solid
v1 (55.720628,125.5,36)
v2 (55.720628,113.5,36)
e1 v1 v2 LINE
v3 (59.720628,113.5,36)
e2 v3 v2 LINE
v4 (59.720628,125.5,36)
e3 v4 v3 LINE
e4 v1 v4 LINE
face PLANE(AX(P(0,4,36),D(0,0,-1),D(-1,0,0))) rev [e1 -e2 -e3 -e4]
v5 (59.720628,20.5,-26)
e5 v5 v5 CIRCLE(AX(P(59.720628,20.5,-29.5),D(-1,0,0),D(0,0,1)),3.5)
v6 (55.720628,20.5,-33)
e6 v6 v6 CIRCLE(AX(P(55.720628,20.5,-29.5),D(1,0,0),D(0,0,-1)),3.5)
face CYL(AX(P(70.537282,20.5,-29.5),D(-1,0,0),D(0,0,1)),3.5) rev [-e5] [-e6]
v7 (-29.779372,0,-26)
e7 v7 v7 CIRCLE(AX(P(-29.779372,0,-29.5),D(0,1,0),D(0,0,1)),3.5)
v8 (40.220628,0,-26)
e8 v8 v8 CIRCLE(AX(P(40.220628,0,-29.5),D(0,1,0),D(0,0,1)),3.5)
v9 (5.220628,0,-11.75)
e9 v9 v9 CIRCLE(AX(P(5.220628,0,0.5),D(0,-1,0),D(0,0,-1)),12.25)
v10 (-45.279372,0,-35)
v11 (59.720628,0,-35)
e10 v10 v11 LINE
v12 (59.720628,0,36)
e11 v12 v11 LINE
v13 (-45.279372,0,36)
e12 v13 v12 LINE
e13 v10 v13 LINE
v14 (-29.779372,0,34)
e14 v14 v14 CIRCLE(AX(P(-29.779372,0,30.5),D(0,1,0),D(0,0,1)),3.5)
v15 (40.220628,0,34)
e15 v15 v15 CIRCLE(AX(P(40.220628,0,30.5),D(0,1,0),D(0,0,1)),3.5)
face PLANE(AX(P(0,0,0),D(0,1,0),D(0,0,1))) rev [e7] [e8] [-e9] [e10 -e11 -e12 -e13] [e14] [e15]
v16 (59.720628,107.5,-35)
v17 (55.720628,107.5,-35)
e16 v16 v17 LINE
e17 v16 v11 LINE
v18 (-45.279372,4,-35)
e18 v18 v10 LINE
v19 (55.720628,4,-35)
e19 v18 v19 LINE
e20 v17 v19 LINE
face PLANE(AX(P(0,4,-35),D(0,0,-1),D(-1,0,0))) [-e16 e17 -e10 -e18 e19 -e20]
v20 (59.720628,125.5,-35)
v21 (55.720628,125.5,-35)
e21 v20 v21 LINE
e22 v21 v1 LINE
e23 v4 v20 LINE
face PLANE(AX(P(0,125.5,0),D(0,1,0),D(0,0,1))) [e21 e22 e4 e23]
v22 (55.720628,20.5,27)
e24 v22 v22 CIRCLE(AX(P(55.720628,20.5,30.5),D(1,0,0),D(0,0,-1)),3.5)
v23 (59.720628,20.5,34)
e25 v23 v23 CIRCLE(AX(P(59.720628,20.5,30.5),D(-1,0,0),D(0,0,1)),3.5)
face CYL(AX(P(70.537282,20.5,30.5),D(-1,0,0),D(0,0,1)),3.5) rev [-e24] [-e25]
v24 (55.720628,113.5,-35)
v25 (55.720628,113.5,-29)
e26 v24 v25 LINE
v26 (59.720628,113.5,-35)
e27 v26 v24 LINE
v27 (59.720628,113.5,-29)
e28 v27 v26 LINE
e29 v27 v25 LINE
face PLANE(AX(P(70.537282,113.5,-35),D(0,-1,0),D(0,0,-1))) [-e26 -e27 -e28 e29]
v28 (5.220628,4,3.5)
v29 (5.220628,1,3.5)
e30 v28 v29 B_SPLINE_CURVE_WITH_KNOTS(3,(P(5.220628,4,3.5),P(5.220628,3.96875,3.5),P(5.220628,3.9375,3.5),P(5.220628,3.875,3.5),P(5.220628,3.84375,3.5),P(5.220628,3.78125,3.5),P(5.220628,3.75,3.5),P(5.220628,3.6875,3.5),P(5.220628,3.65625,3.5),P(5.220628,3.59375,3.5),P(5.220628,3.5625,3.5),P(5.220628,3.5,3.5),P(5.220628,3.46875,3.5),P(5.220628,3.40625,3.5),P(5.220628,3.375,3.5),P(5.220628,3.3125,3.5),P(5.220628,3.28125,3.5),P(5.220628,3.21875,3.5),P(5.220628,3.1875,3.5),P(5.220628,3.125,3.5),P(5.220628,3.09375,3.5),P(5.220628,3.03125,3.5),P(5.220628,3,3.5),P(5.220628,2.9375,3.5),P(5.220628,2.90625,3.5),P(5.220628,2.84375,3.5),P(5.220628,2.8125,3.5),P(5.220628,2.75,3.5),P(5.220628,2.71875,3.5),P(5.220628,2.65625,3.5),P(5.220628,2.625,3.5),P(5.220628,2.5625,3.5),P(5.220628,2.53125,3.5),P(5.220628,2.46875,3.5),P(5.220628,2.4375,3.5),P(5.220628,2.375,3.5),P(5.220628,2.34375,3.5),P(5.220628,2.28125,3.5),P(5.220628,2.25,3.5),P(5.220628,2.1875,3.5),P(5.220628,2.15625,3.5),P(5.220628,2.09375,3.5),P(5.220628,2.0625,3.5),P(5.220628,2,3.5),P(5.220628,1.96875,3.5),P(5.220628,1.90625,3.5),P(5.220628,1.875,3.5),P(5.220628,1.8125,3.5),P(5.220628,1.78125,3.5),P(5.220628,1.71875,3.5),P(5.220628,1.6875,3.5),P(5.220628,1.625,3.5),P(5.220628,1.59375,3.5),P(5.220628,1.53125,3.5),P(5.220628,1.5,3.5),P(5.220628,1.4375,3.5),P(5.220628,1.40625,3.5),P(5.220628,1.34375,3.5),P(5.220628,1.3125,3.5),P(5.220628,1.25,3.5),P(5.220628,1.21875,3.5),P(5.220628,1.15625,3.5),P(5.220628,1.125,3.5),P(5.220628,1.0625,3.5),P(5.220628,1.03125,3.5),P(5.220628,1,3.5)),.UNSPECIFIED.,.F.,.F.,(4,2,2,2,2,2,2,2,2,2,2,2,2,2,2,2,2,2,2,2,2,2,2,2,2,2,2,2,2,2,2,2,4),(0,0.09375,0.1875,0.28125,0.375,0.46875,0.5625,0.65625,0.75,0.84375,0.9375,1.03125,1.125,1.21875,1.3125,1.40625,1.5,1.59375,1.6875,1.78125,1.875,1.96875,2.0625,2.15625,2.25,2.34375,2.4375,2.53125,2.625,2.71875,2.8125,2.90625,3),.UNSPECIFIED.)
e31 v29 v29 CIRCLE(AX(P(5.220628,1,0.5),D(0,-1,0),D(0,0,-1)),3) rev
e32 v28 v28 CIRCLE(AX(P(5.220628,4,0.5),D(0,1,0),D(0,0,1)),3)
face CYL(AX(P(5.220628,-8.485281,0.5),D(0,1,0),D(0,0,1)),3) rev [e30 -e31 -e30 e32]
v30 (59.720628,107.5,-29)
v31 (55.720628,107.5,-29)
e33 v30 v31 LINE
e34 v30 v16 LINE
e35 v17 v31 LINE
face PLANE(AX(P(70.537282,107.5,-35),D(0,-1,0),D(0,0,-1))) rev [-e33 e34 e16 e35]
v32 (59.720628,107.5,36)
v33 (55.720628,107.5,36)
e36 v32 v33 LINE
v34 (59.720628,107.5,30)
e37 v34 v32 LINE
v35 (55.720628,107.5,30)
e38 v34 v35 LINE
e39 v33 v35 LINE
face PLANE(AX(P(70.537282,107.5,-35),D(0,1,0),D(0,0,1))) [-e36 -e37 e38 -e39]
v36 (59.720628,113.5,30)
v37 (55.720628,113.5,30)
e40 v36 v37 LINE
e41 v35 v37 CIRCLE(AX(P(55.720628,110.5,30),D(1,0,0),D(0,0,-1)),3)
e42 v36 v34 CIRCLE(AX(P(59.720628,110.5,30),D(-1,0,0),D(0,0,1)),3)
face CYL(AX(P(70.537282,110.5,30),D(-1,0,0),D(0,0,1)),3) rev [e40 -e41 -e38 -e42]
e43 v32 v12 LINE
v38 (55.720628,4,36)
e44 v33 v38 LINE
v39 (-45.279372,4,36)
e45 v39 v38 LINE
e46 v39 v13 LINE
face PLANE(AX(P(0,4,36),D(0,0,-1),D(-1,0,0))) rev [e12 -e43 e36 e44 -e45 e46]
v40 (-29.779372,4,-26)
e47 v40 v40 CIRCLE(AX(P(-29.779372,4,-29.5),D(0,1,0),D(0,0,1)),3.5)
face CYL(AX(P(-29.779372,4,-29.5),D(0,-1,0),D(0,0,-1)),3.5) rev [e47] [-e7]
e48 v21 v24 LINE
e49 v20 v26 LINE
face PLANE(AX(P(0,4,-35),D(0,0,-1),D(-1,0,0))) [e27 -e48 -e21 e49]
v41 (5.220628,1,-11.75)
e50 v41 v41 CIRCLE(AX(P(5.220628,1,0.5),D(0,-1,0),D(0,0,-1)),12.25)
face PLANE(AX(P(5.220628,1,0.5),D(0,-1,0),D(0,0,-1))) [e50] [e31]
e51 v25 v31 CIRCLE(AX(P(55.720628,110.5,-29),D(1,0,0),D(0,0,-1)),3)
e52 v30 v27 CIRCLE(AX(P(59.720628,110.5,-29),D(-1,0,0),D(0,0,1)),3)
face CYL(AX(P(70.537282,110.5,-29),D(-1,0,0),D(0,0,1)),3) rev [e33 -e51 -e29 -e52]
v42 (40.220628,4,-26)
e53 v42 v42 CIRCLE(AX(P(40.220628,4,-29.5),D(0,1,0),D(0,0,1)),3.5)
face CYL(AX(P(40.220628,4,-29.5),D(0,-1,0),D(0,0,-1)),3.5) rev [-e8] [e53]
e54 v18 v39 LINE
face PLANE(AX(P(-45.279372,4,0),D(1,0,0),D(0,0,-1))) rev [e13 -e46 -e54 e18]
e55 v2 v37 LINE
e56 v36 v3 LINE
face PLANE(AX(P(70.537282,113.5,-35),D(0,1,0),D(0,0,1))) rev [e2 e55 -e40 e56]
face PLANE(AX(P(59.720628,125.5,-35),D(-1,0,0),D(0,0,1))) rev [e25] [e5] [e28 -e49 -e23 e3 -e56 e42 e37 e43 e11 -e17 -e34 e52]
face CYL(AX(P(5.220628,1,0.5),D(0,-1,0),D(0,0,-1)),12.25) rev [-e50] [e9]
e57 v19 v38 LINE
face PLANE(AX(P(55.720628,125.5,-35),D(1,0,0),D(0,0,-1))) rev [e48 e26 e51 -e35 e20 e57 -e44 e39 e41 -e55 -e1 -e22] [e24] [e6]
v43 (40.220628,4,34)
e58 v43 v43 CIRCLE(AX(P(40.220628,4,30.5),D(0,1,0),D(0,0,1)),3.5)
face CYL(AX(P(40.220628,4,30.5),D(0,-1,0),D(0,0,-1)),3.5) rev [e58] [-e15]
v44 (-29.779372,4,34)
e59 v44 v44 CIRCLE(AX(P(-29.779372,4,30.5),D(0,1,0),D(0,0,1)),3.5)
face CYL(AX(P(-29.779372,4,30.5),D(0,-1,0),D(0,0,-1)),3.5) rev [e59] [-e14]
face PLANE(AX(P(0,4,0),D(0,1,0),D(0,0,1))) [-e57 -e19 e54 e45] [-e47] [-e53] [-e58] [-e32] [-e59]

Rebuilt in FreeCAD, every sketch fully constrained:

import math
import FreeCAD as App
import Part
import Sketcher


def add_polygon(sketch, points):
    """Adds a closed chain of lines whose ends are joined by coincident constraints."""
    first, n = sketch.GeometryCount, len(points)
    for a, b in zip(points, points[1:] + points[:1]):
        sketch.addGeometry(Part.LineSegment(App.Vector(*a, 0), App.Vector(*b, 0)), False)
    for i in range(n):
        sketch.addConstraint(Sketcher.Constraint("Coincident", first + i, 2, first + (i + 1) % n, 1))

doc = App.newDocument("Part")
body = doc.addObject("PartDesign::Body", "Body")

sketch1 = body.newObject("Sketcher::SketchObject", "Sketch")
sketch1.AttachmentSupport = (doc.getObject("XZ_Plane"), [""])
sketch1.MapMode = "FlatFace"
add_polygon(sketch1, [(-45.3, 36), (55.7, 36), (55.7, -35), (-45.3, -35)])
sketch1.addGeometry(Part.ArcOfCircle(Part.Circle(App.Vector(40.2, 30.5, 0), App.Vector(0, 0, 1), 3.5), math.radians(90), math.radians(360)), False)
sketch1.addGeometry(Part.ArcOfCircle(Part.Circle(App.Vector(40.2, 30.5, 0), App.Vector(0, 0, 1), 3.5), math.radians(0), math.radians(90)), False)
sketch1.addGeometry(Part.ArcOfCircle(Part.Circle(App.Vector(40.2, -29.5, 0), App.Vector(0, 0, 1), 3.5), math.radians(0), math.radians(270)), False)
sketch1.addGeometry(Part.ArcOfCircle(Part.Circle(App.Vector(40.2, -29.5, 0), App.Vector(0, 0, 1), 3.5), math.radians(-90), math.radians(0)), False)
sketch1.addGeometry(Part.ArcOfCircle(Part.Circle(App.Vector(-29.8, -29.5, 0), App.Vector(0, 0, 1), 3.5), math.radians(-90), math.radians(0)), False)
sketch1.addGeometry(Part.ArcOfCircle(Part.Circle(App.Vector(-29.8, -29.5, 0), App.Vector(0, 0, 1), 3.5), math.radians(0), math.radians(180)), False)
sketch1.addGeometry(Part.ArcOfCircle(Part.Circle(App.Vector(-29.8, -29.5, 0), App.Vector(0, 0, 1), 3.5), math.radians(-180), math.radians(-90)), False)
sketch1.addGeometry(Part.ArcOfCircle(Part.Circle(App.Vector(-29.8, 30.5, 0), App.Vector(0, 0, 1), 3.5), math.radians(180), math.radians(360)), False)
sketch1.addGeometry(Part.ArcOfCircle(Part.Circle(App.Vector(-29.8, 30.5, 0), App.Vector(0, 0, 1), 3.5), math.radians(0), math.radians(90)), False)
sketch1.addGeometry(Part.ArcOfCircle(Part.Circle(App.Vector(-29.8, 30.5, 0), App.Vector(0, 0, 1), 3.5), math.radians(90), math.radians(180)), False)
sketch1.addConstraint([
    Sketcher.Constraint("Tangent", 4, 1, 5, 2),
    Sketcher.Constraint("Coincident", 5, 1, 4, 2),
    Sketcher.Constraint("Tangent", 6, 1, 7, 2),
    Sketcher.Constraint("Coincident", 7, 1, 6, 2),
    Sketcher.Constraint("Tangent", 8, 2, 9, 1),
    Sketcher.Constraint("Tangent", 9, 2, 10, 1),
    Sketcher.Constraint("Tangent", 10, 2, 8, 1),
    Sketcher.Constraint("Tangent", 11, 2, 12, 1),
    Sketcher.Constraint("Tangent", 12, 2, 13, 1),
    Sketcher.Constraint("Tangent", 13, 2, 11, 1),
    Sketcher.Constraint("Horizontal", 0),
    Sketcher.Constraint("Vertical", 1),
    Sketcher.Constraint("Horizontal", 2),
    Sketcher.Constraint("Vertical", 3),
    Sketcher.Constraint("Equal", 5, 6),
    Sketcher.Constraint("Equal", 7, 8),
    Sketcher.Constraint("Equal", 10, 11),
    Sketcher.Constraint("Horizontal", 7, 3, 8, 3),
    Sketcher.Constraint("Horizontal", 5, 3, 11, 3),
    Sketcher.Constraint("Horizontal", 13, 3, 5, 1),
    Sketcher.Constraint("Horizontal", 10, 3, 6, 1),
    Sketcher.Constraint("Horizontal", 6, 1, 8, 2),
    Sketcher.Constraint("Horizontal", 8, 2, 9, 2),
    Sketcher.Constraint("Horizontal", 5, 1, 11, 2),
    Sketcher.Constraint("Horizontal", 11, 2, 13, 2),
    Sketcher.Constraint("Vertical", 5, 3, 6, 3),
    Sketcher.Constraint("Vertical", 10, 3, 11, 3),
    Sketcher.Constraint("Vertical", 7, 3, 4, 1),
    Sketcher.Constraint("Vertical", 4, 1, 7, 1),
    Sketcher.Constraint("Vertical", 13, 3, 10, 2),
    Sketcher.Constraint("Vertical", 10, 2, 12, 2),
    Sketcher.Constraint("Radius", 4, 3.5),
    Sketcher.Constraint("DistanceX", 0, 1, 0, 2, 101.0),
    Sketcher.Constraint("DistanceY", 1, 2, 1, 1, 71.0),
    Sketcher.Constraint("DistanceY", -1, 1, 0, 2, 36.0),
    Sketcher.Constraint("DistanceY", -1, 1, 4, 1, 34.0),
    Sketcher.Constraint("DistanceY", 7, 1, -1, 1, 33.0),
    Sketcher.Constraint("DistanceX", 8, 3, 7, 3, 70.0),
    Sketcher.Constraint("DistanceX", 5, 1, 0, 2, 12.0),
    Sketcher.Constraint("DistanceX", -1, 1, 4, 3, 40.220628),
])
pad1 = body.newObject("PartDesign::Pad", "Pad")
pad1.Profile = sketch1
pad1.Length = 4
pad1.Reversed = True

sketch2 = body.newObject("Sketcher::SketchObject", "Sketch001")
sketch2.AttachmentSupport = (doc.getObject("XZ_Plane"), [""])
sketch2.MapMode = "FlatFace"
add_polygon(sketch2, [(55.7, -35), (55.7, 36), (59.7, 36), (59.7, -35)])
sketch2.addConstraint([
    Sketcher.Constraint("Vertical", 0),
    Sketcher.Constraint("Horizontal", 1),
    Sketcher.Constraint("Vertical", 2),
    Sketcher.Constraint("Horizontal", 3),
    Sketcher.Constraint("DistanceX", 1, 1, 1, 2, 4.0),
    Sketcher.Constraint("DistanceY", 0, 1, 0, 2, 71.0),
    Sketcher.Constraint("DistanceY", -1, 1, 0, 2, 36.0),
    Sketcher.Constraint("DistanceX", -1, 1, 0, 2, 55.720628),
])
pad2 = body.newObject("PartDesign::Pad", "Pad001")
pad2.Profile = sketch2
pad2.Length = 125.5
pad2.Reversed = True

sketch3 = body.newObject("Sketcher::SketchObject", "Sketch002")
sketch3.AttachmentSupport = (doc.getObject("YZ_Plane"), [""])
sketch3.MapMode = "FlatFace"
sketch3.AttachmentOffset = App.Placement(App.Vector(0, 0, 55.720628), App.Rotation())
sketch3.addGeometry([
    Part.ArcOfCircle(Part.Circle(App.Vector(110.5, -29, 0), App.Vector(0, 0, 1), 3), math.radians(0), math.radians(90)),
    Part.ArcOfCircle(Part.Circle(App.Vector(110.5, -29, 0), App.Vector(0, 0, 1), 3), math.radians(90), math.radians(180)),
    Part.LineSegment(App.Vector(107.5, -29, 0), App.Vector(107.5, -35, 0)),
    Part.LineSegment(App.Vector(107.5, -35, 0), App.Vector(113.5, -35, 0)),
    Part.LineSegment(App.Vector(113.5, -35, 0), App.Vector(113.5, -29, 0)),
    Part.ArcOfCircle(Part.Circle(App.Vector(110.5, 30, 0), App.Vector(0, 0, 1), 3), math.radians(-90), math.radians(0)),
    Part.LineSegment(App.Vector(113.5, 30, 0), App.Vector(113.5, 36, 0)),
    Part.LineSegment(App.Vector(113.5, 36, 0), App.Vector(107.5, 36, 0)),
    Part.LineSegment(App.Vector(107.5, 36, 0), App.Vector(107.5, 30, 0)),
    Part.ArcOfCircle(Part.Circle(App.Vector(110.5, 30, 0), App.Vector(0, 0, 1), 3), math.radians(180), math.radians(270)),
    Part.Circle(App.Vector(20.5, -29.5, 0), App.Vector(0, 0, 1), 3.5),
    Part.Circle(App.Vector(20.5, 30.5, 0), App.Vector(0, 0, 1), 3.5),
], False)
sketch3.addConstraint([
    Sketcher.Constraint("Tangent", 0, 2, 1, 1),
    Sketcher.Constraint("Tangent", 1, 2, 2, 1),
    Sketcher.Constraint("Coincident", 2, 2, 3, 1),
    Sketcher.Constraint("Coincident", 3, 2, 4, 1),
    Sketcher.Constraint("Tangent", 4, 2, 0, 1),
    Sketcher.Constraint("Tangent", 5, 2, 6, 1),
    Sketcher.Constraint("Coincident", 6, 2, 7, 1),
    Sketcher.Constraint("Coincident", 7, 2, 8, 1),
    Sketcher.Constraint("Tangent", 8, 2, 9, 1),
    Sketcher.Constraint("Tangent", 9, 2, 5, 1),
    Sketcher.Constraint("Vertical", 2),
    Sketcher.Constraint("Horizontal", 3),
    Sketcher.Constraint("Vertical", 4),
    Sketcher.Constraint("Vertical", 6),
    Sketcher.Constraint("Horizontal", 7),
    Sketcher.Constraint("Vertical", 8),
    Sketcher.Constraint("Equal", 0, 1),
    Sketcher.Constraint("Equal", 1, 5),
    Sketcher.Constraint("Equal", 5, 9),
    Sketcher.Constraint("Equal", 10, 11),
    Sketcher.Constraint("Vertical", 1, 3, 5, 3),
    Sketcher.Constraint("Vertical", 10, 3, 11, 3),
    Sketcher.Constraint("Vertical", 9, 3, 0, 2),
    Sketcher.Constraint("Vertical", 0, 2, 9, 2),
    Sketcher.Constraint("Equal", 7, 2),
    Sketcher.Constraint("Equal", 4, 6),
    Sketcher.Constraint("Diameter", 10, 7.0),
    Sketcher.Constraint("Radius", 0, 3.0),
    Sketcher.Constraint("DistanceY", 0, 3, -1, 1, 29.0),
    Sketcher.Constraint("DistanceY", -1, 1, 5, 3, 30.0),
    Sketcher.Constraint("DistanceX", 10, 3, 1, 3, 90.0),
    Sketcher.Constraint("DistanceY", 10, 3, 11, 3, 60.0),
    Sketcher.Constraint("DistanceX", -1, 1, 0, 3, 110.5),
    Sketcher.Constraint("DistanceY", 10, 3, -1, 1, 29.5),
])
pocket1 = body.newObject("PartDesign::Pocket", "Pocket")
pocket1.Profile = sketch3
pocket1.Length = 59.720628
pocket1.Reversed = True

sketch4 = body.newObject("Sketcher::SketchObject", "Sketch003")
sketch4.AttachmentSupport = (doc.getObject("XZ_Plane"), [""])
sketch4.MapMode = "FlatFace"
sketch4.AttachmentOffset = App.Placement(App.Vector(0, 0, -4), App.Rotation())
sketch4.addGeometry(Part.Circle(App.Vector(5.2, 0.5, 0), App.Vector(0, 0, 1), 3), False)
sketch4.addConstraint([
    Sketcher.Constraint("Diameter", 0, 6.0),
    Sketcher.Constraint("DistanceY", -1, 1, 0, 3, 0.5),
    Sketcher.Constraint("DistanceX", -1, 1, 0, 3, 5.220628),
])
pocket2 = body.newObject("PartDesign::Pocket", "Pocket001")
pocket2.Profile = sketch4
pocket2.Length = 4
pocket2.Reversed = True

sketch5 = body.newObject("Sketcher::SketchObject", "Sketch004")
sketch5.AttachmentSupport = (doc.getObject("XZ_Plane"), [""])
sketch5.MapMode = "FlatFace"
sketch5.addGeometry(Part.Circle(App.Vector(5, 0, 0), App.Vector(0, 0, 1), 12), False)
sketch5.addConstraint([
    Sketcher.Constraint("Diameter", 0, 24.5),
    Sketcher.Constraint("DistanceY", -1, 1, 0, 3, 0.5),
    Sketcher.Constraint("DistanceX", -1, 1, 0, 3, 5.220628),
])
pocket3 = body.newObject("PartDesign::Pocket", "Pocket002")
pocket3.Profile = sketch5
pocket3.Length = 1

doc.recompute()
